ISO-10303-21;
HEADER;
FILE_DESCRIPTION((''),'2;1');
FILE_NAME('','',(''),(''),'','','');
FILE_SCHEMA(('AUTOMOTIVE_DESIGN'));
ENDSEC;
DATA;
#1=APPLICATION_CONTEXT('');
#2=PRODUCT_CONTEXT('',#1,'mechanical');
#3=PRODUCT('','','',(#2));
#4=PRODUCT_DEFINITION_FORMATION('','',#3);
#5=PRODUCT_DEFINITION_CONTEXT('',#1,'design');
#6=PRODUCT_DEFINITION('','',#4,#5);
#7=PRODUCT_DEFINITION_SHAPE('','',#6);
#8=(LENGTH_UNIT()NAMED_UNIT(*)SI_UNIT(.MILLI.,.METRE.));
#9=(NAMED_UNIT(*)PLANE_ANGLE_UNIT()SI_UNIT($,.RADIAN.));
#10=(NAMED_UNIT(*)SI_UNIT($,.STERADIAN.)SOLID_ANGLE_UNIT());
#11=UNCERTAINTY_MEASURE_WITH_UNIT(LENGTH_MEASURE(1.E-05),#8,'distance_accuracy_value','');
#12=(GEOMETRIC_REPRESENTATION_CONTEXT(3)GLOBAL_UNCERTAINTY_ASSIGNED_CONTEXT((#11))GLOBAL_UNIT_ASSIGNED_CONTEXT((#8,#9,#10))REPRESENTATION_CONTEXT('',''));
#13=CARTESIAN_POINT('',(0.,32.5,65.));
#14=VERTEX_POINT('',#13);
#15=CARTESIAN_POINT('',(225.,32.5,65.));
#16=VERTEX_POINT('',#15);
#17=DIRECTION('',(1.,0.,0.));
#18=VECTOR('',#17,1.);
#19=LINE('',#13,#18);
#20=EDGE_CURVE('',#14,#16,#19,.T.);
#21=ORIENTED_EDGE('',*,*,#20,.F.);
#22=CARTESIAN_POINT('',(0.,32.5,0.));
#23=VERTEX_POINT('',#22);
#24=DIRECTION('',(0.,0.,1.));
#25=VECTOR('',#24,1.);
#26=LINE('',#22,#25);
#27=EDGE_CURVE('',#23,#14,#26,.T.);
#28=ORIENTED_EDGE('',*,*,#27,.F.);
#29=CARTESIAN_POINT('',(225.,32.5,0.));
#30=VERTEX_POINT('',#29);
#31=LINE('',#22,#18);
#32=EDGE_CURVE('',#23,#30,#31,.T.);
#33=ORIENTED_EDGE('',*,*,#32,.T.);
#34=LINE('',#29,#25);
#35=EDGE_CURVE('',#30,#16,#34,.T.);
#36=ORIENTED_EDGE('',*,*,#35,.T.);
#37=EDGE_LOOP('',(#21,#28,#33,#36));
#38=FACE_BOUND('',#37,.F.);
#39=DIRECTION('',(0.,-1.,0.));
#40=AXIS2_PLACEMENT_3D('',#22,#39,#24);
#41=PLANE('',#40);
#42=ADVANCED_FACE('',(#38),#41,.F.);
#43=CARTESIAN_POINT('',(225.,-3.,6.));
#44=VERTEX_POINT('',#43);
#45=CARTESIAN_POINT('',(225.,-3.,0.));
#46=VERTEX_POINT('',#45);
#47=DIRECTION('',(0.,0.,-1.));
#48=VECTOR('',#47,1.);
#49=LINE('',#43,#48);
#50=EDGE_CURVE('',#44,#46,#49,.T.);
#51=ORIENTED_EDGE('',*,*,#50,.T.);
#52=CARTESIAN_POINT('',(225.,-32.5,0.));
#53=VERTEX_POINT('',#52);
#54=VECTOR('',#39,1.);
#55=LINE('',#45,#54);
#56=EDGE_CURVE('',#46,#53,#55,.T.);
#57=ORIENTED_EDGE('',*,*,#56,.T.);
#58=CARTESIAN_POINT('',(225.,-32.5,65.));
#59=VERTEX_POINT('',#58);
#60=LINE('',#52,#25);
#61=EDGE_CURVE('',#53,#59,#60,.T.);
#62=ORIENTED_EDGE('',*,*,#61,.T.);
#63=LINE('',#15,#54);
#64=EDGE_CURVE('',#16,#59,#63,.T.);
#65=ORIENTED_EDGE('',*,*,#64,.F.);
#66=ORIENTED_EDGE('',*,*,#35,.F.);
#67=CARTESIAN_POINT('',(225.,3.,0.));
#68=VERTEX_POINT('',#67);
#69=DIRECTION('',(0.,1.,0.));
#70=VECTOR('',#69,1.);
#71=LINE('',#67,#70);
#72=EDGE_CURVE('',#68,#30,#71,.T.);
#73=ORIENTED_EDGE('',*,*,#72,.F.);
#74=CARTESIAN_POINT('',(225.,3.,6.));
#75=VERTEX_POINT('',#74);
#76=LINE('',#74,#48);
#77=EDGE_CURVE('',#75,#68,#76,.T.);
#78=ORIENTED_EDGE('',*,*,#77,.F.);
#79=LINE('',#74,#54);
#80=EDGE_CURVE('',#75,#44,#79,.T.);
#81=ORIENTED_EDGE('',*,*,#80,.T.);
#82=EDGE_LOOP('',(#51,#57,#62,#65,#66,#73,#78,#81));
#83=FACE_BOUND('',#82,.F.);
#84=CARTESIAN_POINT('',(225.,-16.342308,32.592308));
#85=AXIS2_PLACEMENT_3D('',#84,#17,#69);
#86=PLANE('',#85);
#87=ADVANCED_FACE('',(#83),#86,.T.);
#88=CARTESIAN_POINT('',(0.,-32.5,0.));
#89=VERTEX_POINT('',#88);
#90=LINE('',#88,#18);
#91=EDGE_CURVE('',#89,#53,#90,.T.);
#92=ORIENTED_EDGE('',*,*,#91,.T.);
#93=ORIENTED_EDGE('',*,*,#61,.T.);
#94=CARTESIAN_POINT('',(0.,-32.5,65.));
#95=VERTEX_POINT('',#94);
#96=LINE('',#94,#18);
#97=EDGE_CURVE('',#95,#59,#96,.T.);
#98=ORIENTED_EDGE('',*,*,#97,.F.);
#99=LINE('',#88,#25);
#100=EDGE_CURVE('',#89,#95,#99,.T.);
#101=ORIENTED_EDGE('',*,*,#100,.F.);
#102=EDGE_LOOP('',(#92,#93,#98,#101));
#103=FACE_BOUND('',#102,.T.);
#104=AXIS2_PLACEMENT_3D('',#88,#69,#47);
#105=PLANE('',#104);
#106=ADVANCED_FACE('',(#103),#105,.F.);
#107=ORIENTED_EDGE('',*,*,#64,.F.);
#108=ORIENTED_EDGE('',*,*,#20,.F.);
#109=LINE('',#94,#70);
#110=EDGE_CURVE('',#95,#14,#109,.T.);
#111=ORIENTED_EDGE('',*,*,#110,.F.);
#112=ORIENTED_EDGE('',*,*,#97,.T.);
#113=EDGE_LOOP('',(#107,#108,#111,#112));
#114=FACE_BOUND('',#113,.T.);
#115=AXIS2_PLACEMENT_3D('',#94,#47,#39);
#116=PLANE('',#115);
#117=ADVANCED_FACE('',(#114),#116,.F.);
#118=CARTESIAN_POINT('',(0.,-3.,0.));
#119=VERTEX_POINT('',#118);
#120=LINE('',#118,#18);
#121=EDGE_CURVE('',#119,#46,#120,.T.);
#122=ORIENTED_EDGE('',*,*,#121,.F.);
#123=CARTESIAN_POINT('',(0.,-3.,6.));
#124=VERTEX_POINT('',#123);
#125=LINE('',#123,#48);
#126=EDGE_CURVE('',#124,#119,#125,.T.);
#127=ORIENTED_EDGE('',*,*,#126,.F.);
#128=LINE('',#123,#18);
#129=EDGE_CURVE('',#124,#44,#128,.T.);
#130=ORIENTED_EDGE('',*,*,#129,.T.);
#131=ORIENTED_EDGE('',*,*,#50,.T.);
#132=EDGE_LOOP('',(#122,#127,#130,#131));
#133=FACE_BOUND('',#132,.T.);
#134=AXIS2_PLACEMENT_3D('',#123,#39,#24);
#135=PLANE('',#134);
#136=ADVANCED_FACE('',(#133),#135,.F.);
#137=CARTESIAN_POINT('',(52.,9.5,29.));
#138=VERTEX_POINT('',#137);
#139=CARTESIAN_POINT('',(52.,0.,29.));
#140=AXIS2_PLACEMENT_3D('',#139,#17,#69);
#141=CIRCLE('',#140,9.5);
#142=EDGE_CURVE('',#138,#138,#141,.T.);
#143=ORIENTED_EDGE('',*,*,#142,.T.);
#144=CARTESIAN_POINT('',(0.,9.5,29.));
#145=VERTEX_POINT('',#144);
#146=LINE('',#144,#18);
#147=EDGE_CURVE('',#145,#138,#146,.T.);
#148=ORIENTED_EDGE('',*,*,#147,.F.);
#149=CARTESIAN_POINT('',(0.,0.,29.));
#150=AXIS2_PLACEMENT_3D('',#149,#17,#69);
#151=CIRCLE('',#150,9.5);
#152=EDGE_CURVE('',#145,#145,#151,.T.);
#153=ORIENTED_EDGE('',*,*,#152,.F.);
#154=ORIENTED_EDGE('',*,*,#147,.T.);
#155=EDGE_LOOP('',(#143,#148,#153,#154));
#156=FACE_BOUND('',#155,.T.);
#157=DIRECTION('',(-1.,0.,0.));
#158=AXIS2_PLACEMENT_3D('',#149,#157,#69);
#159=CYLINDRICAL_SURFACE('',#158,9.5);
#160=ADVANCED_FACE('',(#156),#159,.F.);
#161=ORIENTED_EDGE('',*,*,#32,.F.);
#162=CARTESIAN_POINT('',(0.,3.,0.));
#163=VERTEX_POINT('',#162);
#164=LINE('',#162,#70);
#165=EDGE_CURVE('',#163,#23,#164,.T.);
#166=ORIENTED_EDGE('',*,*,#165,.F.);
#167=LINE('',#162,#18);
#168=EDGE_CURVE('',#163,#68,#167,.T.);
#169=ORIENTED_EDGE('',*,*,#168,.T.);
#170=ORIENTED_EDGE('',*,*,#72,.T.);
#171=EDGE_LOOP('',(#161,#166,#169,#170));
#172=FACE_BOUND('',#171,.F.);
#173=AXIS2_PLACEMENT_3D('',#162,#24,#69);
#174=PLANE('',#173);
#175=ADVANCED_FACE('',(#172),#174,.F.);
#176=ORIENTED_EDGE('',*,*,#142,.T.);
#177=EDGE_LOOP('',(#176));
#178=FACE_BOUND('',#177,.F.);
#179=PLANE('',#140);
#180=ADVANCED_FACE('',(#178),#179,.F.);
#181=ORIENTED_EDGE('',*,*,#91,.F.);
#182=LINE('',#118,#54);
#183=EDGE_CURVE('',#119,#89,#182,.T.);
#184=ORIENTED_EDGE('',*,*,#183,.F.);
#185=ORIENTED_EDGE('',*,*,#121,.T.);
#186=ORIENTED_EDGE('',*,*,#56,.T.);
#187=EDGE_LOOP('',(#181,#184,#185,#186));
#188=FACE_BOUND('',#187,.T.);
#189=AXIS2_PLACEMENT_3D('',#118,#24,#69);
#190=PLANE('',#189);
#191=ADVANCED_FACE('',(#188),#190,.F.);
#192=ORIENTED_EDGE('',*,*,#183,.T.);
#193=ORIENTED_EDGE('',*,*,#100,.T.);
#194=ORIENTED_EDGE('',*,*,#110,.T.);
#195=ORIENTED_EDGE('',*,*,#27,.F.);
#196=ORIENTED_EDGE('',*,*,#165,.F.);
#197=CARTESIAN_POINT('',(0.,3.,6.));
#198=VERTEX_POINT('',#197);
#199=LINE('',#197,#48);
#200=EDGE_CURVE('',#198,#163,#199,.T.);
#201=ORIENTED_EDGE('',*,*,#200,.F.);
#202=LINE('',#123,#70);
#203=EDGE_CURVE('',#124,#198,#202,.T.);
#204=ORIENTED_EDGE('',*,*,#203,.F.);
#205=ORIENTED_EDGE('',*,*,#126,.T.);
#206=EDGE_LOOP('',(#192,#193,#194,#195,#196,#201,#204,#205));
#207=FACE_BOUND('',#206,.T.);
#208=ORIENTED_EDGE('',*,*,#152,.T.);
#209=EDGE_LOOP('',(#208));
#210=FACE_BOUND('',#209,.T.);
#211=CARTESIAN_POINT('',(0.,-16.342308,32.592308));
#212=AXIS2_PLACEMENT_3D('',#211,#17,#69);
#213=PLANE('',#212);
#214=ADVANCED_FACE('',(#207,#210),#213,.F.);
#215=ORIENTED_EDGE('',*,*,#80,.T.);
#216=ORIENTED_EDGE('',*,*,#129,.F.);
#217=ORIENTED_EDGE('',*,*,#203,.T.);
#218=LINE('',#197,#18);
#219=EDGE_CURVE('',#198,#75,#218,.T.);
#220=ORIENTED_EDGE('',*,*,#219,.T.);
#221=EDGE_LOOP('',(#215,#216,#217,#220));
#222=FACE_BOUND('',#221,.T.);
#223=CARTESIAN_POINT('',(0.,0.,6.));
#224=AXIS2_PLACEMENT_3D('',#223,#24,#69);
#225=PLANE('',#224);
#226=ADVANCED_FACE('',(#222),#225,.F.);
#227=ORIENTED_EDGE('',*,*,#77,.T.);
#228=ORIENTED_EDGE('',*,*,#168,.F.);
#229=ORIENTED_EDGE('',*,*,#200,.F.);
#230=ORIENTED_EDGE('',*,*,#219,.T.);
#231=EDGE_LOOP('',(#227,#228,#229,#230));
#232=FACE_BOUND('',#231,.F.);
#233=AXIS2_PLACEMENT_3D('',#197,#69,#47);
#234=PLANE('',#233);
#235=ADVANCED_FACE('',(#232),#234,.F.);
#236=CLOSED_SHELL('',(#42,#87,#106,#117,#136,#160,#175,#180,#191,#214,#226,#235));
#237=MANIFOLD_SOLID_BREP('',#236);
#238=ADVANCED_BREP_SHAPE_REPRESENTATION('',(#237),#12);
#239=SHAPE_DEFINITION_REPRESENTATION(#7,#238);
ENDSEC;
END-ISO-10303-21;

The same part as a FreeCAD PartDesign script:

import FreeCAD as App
import Part
import Sketcher

doc = App.newDocument("Part")
body = doc.addObject("PartDesign::Body", "Body")

# Sketch on YZ plane
sketch1 = doc.addObject("Sketcher::SketchObject", "Sketch")
body.addObject(sketch1)
sketch1.AttachmentSupport = (doc.YZ_Plane, [""])
sketch1.MapMode = "FlatFace"
sketch1.addGeometry(Part.LineSegment(App.Vector(3, 6, 0), App.Vector(3, 0, 0)), False)
sketch1.addGeometry(Part.LineSegment(App.Vector(3, 0, 0), App.Vector(32.5, 0, 0)), False)
sketch1.addGeometry(Part.LineSegment(App.Vector(32.5, 0, 0), App.Vector(32.5, 65, 0)), False)
sketch1.addGeometry(Part.LineSegment(App.Vector(32.5, 65, 0), App.Vector(0, 65, 0)), False)
sketch1.addGeometry(Part.LineSegment(App.Vector(0, 65, 0), App.Vector(0, 6, 0)), False)
sketch1.addGeometry(Part.LineSegment(App.Vector(0, 6, 0), App.Vector(3, 6, 0)), False)
sketch1.addConstraint(Sketcher.Constraint("Coincident", 0, 2, 1, 1))
sketch1.addConstraint(Sketcher.Constraint("Coincident", 1, 2, 2, 1))
sketch1.addConstraint(Sketcher.Constraint("Coincident", 2, 2, 3, 1))
sketch1.addConstraint(Sketcher.Constraint("Coincident", 3, 2, 4, 1))
sketch1.addConstraint(Sketcher.Constraint("Coincident", 4, 2, 5, 1))
sketch1.addConstraint(Sketcher.Constraint("Coincident", 5, 2, 0, 1))
sketch1.addConstraint(Sketcher.Constraint("Vertical", 0))
sketch1.addConstraint(Sketcher.Constraint("Horizontal", 1))
sketch1.addConstraint(Sketcher.Constraint("Vertical", 2))
sketch1.addConstraint(Sketcher.Constraint("Horizontal", 3))
sketch1.addConstraint(Sketcher.Constraint("Vertical", 4))
sketch1.addConstraint(Sketcher.Constraint("Horizontal", 5))
sketch1.addConstraint(Sketcher.Constraint("PointOnObject", 0, 2, -1))
sketch1.addConstraint(Sketcher.Constraint("PointOnObject", 3, 2, -2))
sketch1.addConstraint(Sketcher.Constraint("DistanceX", 5, 1, 5, 2, 3.0))
sketch1.addConstraint(Sketcher.Constraint("DistanceY", 0, 2, 0, 1, 6.0))
sketch1.addConstraint(Sketcher.Constraint("DistanceY", 2, 1, 2, 2, 65.0))
sketch1.addConstraint(Sketcher.Constraint("DistanceX", 1, 1, 1, 2, 29.5))
pad1 = doc.addObject("PartDesign::Pad", "Pad")
body.addObject(pad1)
pad1.Profile = sketch1
pad1.Length = 225
body2 = doc.addObject("PartDesign::Body", "Body001")
doc.recompute()

body2.BaseFeature = body
doc.recompute()

mirroring = doc.addObject("Part::Mirroring", "Mirroring")
mirroring.Source = body
mirroring.Base = App.Vector(0, 0, 0)
mirroring.Normal = App.Vector(0, -1, 0)
body3 = doc.addObject("PartDesign::Body", "Body002")
body3.BaseFeature = mirroring
boolean = doc.addObject("PartDesign::Boolean", "Boolean")
body2.addObject(boolean)
boolean.Type = "Fuse"
boolean.addObjects([body3])
doc.recompute()

# Sketch on YZ plane
sketch2 = doc.addObject("Sketcher::SketchObject", "Sketch001")
body2.addObject(sketch2)
sketch2.AttachmentSupport = (doc.getObject("YZ_Plane001"), [""])
sketch2.MapMode = "FlatFace"
sketch2.addGeometry(Part.Circle(App.Vector(0, 29, 0), App.Vector(0, 0, 1), 10), False)
sketch2.addConstraint(Sketcher.Constraint("PointOnObject", 0, 3, -2))
sketch2.addConstraint(Sketcher.Constraint("Diameter", 0, 19.0))
sketch2.addConstraint(Sketcher.Constraint("DistanceY", -1, 1, 0, 3, 29.0))
pocket1 = doc.addObject("PartDesign::Pocket", "Pocket")
body2.addObject(pocket1)
pocket1.Profile = sketch2
pocket1.Length = 52
pocket1.Reversed = True
mirroring.Visibility = False

doc.recompute()
